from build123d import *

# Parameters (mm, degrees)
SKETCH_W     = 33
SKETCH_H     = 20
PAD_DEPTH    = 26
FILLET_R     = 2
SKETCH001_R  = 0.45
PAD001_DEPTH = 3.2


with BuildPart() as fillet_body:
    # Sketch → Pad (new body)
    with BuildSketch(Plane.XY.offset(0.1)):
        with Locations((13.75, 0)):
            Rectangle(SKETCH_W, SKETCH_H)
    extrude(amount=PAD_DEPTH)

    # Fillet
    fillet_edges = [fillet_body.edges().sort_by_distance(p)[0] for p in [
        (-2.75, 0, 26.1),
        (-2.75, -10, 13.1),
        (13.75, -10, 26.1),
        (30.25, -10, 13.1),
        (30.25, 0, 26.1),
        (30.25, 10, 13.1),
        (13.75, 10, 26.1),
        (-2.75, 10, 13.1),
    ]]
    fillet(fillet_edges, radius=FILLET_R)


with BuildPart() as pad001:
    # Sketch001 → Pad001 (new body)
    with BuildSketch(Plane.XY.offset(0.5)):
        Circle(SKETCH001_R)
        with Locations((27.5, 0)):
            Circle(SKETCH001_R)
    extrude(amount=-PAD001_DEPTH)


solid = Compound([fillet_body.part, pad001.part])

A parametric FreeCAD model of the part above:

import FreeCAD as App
import Part
import Sketcher

V = App.Vector


def edges_at(feature, points):
    """Names of the edges that pass closest to the given points."""
    edges = feature.Shape.Edges
    near = lambda p: min(range(len(edges)), key=lambda i: edges[i].distToShape(Part.Vertex(*p))[0])
    return sorted({f"Edge{near(p) + 1}" for p in points})


def add_polygon(sketch, points):
    """Adds a closed chain of lines whose ends are joined by coincident constraints."""
    first, n = sketch.GeometryCount, len(points)
    for a, b in zip(points, points[1:] + points[:1]):
        sketch.addGeometry(Part.LineSegment(App.Vector(*a, 0), App.Vector(*b, 0)), False)
    for i in range(n):
        sketch.addConstraint(Sketcher.Constraint("Coincident", first + i, 2, first + (i + 1) % n, 1))

doc = App.newDocument("Part")
params = doc.addObject("Spreadsheet::Sheet", "Params")
for row, (alias, value) in enumerate([
    ("sketch1_width", "33 mm"),
    ("sketch1_height", "20 mm"),
    ("pad1_length", "26 mm"),
    ("fillet_radius", "2 mm"),
    ("sketch2_diameter", "0.9 mm"),
    ("pad2_length", "3.2 mm"),
], start=1):
    params.set(f"A{row}", alias)
    params.set(f"B{row}", "=" + value)
    params.setAlias(f"B{row}", alias)

body = doc.addObject("PartDesign::Body", "Body")

sketch1 = body.newObject("Sketcher::SketchObject", "Sketch")
sketch1.AttachmentSupport = (doc.getObject("XY_Plane"), [""])
sketch1.MapMode = "FlatFace"
sketch1.AttachmentOffset = App.Placement(V(0, 0, 0.1), App.Rotation())
add_polygon(sketch1, [(-3, 10), (-3, -10), (30, -10), (30, 10)])
sketch1.addConstraint([
    Sketcher.Constraint("Vertical", 0),
    Sketcher.Constraint("Horizontal", 1),
    Sketcher.Constraint("Vertical", 2),
    Sketcher.Constraint("Horizontal", 3),
    Sketcher.Constraint("DistanceX", 1, 1, 1, 2, 33.0),
    Sketcher.Constraint("DistanceY", 0, 2, 0, 1, 20.0),
    Sketcher.Constraint("DistanceY", 0, 2, -1, 1, 10.0),
    Sketcher.Constraint("DistanceX", 0, 2, -1, 1, 2.75),
])
sketch1.setExpression("Constraints[8]", "Params.sketch1_width")
sketch1.setExpression("Constraints[9]", "Params.sketch1_height")
pad1 = body.newObject("PartDesign::Pad", "Pad")
pad1.Profile = sketch1
pad1.setExpression("Length", "Params.pad1_length")
doc.recompute()

fillet = body.newObject("PartDesign::Fillet", "Fillet")
fillet.Base = (pad1, edges_at(pad1, [
    (-2.75, 0, 26.1),
    (-2.75, -10, 13.1),
    (13.75, -10, 26.1),
    (30.25, -10, 13.1),
    (30.25, 0, 26.1),
    (30.25, 10, 13.1),
    (13.75, 10, 26.1),
    (-2.75, 10, 13.1),
]))
fillet.setExpression("Radius", "Params.fillet_radius")
body2 = doc.addObject("PartDesign::Body", "Body001")
body2.AllowCompound = True

sketch2 = body2.newObject("Sketcher::SketchObject", "Sketch001")
sketch2.AttachmentSupport = (doc.getObject("XY_Plane001"), [""])
sketch2.MapMode = "FlatFace"
sketch2.AttachmentOffset = App.Placement(V(0, 0, 0.5), App.Rotation())
sketch2.addGeometry([
    Part.Circle(V(0, 0, 0), V(0, 0, 1), 0.45),
    Part.Circle(V(27.5, 0, 0), V(0, 0, 1), 0.45),
], False)
sketch2.addConstraint([
    Sketcher.Constraint("Coincident", 0, 3, -1, 1),
    Sketcher.Constraint("Equal", 0, 1),
    Sketcher.Constraint("PointOnObject", 1, 3, -1),
    Sketcher.Constraint("Diameter", 0, 0.9),
    Sketcher.Constraint("DistanceX", -1, 1, 1, 3, 27.5),
])
sketch2.setExpression("Constraints[3]", "Params.sketch2_diameter")
pad2 = body2.newObject("PartDesign::Pad", "Pad001")
pad2.Profile = sketch2
pad2.setExpression("Length", "Params.pad2_length")
pad2.Reversed = True

doc.recompute()
